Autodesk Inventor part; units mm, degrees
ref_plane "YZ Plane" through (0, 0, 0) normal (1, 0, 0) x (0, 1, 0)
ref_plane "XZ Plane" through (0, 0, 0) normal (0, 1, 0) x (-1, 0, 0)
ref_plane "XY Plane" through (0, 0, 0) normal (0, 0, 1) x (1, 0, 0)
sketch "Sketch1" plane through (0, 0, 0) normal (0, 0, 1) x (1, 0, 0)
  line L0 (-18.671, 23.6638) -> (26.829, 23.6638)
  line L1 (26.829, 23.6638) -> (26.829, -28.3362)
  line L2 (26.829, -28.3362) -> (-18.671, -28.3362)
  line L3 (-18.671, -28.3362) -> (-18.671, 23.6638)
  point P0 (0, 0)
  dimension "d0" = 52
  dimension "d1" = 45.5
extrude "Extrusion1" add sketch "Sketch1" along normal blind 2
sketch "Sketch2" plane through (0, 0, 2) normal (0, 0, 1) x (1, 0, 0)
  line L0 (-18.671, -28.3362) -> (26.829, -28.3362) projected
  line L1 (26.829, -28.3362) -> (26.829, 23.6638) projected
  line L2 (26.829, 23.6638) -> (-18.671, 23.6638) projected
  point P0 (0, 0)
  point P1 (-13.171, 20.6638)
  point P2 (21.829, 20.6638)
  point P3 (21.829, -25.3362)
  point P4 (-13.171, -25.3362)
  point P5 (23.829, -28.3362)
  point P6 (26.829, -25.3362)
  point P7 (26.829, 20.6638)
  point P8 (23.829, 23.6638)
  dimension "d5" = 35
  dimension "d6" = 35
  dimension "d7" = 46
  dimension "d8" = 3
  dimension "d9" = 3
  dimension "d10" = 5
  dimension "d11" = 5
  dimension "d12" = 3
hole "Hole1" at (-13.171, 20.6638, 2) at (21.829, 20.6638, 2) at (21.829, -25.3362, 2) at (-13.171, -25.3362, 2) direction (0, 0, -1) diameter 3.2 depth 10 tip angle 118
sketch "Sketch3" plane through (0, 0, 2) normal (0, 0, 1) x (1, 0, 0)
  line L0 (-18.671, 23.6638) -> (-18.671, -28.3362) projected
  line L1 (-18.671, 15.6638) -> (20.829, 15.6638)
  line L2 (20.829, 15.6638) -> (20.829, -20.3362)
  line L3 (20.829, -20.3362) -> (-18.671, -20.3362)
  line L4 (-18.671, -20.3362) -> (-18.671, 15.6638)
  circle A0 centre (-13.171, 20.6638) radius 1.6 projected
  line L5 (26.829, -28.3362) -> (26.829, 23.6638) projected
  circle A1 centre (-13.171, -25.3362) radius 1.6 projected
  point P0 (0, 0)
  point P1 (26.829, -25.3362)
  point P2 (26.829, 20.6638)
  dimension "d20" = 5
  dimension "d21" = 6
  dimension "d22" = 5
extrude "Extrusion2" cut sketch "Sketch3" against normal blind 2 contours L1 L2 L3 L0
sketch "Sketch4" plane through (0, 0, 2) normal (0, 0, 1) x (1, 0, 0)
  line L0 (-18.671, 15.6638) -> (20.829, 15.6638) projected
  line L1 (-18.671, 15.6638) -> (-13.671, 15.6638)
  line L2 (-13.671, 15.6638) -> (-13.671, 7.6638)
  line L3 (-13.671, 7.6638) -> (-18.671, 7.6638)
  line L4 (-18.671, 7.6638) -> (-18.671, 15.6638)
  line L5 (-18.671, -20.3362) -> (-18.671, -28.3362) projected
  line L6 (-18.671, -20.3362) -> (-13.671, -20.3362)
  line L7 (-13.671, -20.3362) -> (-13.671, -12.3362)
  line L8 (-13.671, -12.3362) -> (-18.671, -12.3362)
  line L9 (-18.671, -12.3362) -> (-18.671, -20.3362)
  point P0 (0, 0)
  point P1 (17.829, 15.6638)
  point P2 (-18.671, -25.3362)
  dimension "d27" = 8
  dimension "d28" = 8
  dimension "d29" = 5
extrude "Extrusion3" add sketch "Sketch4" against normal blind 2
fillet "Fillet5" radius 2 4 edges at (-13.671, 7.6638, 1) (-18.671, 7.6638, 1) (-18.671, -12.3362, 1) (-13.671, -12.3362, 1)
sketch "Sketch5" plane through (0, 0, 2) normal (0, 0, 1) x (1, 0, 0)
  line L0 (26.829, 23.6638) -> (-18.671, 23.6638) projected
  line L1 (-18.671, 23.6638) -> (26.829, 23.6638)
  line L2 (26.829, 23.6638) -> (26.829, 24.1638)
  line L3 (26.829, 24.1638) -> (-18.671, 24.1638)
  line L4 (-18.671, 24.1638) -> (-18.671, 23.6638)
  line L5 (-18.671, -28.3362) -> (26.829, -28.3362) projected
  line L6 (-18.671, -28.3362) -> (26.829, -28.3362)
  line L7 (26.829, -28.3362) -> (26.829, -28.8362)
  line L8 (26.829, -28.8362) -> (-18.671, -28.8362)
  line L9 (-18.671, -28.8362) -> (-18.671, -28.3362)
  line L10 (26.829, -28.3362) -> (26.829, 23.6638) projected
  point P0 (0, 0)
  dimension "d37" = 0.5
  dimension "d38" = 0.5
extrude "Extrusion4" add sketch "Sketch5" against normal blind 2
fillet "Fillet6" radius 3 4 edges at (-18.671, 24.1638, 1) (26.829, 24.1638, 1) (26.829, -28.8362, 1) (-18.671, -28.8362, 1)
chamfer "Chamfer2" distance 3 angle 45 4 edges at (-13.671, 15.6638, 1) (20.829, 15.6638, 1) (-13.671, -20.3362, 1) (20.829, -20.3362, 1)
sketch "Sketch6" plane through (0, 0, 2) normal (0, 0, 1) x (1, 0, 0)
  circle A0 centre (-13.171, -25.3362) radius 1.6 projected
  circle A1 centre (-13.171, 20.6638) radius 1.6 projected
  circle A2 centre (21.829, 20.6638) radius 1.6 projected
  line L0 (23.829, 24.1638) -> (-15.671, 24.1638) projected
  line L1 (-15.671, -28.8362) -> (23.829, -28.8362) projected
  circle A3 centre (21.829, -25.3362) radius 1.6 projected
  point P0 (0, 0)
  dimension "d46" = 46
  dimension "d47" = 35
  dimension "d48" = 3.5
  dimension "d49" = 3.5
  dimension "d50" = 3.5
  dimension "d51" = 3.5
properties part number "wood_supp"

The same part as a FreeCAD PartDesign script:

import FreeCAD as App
import Part
import Sketcher

V = App.Vector


def edges_at(feature, points):
    """Names of the edges that pass closest to the given points."""
    edges = feature.Shape.Edges
    near = lambda p: min(range(len(edges)), key=lambda i: edges[i].distToShape(Part.Vertex(*p))[0])
    return sorted({f"Edge{near(p) + 1}" for p in points})

doc = App.newDocument("Part")
body = doc.addObject("PartDesign::Body", "Body")

sketch1 = body.newObject("Sketcher::SketchObject", "Sketch")
sketch1.AttachmentSupport = (doc.getObject("XY_Plane"), [""])
sketch1.MapMode = "FlatFace"
sketch1.addGeometry(Part.LineSegment(V(27, 24, 0), V(-19, 24, 0)), False)
sketch1.addGeometry(Part.LineSegment(V(-19, 24, 0), V(-19, -28, 0)), False)
sketch1.addGeometry(Part.LineSegment(V(-19, -28, 0), V(27, -28, 0)), False)
sketch1.addGeometry(Part.LineSegment(V(27, -28, 0), V(27, 24, 0)), False)
sketch1.addConstraint(Sketcher.Constraint("Coincident", 0, 2, 1, 1))
sketch1.addConstraint(Sketcher.Constraint("Coincident", 1, 2, 2, 1))
sketch1.addConstraint(Sketcher.Constraint("Coincident", 2, 2, 3, 1))
sketch1.addConstraint(Sketcher.Constraint("Coincident", 3, 2, 0, 1))
sketch1.addConstraint(Sketcher.Constraint("Horizontal", 0))
sketch1.addConstraint(Sketcher.Constraint("Vertical", 1))
sketch1.addConstraint(Sketcher.Constraint("Horizontal", 2))
sketch1.addConstraint(Sketcher.Constraint("Vertical", 3))
sketch1.addConstraint(Sketcher.Constraint("DistanceY", 1, 2, 1, 1, 52.0))
sketch1.addConstraint(Sketcher.Constraint("DistanceX", 0, 2, 0, 1, 45.5))
sketch1.addConstraint(Sketcher.Constraint("DistanceX", 0, 2, -1, 1, 18.671))
sketch1.addConstraint(Sketcher.Constraint("DistanceY", -1, 1, 0, 2, 23.6638))
pad1 = body.newObject("PartDesign::Pad", "Pad")
pad1.Profile = sketch1
pad1.Length = 2

sketch2 = body.newObject("Sketcher::SketchObject", "Sketch001")
sketch2.AttachmentSupport = (doc.getObject("XY_Plane"), [""])
sketch2.MapMode = "FlatFace"
sketch2.AttachmentOffset = App.Placement(V(0, 0, 2), App.Rotation())
sketch2.addGeometry(Part.Circle(V(-13.2, 20.7, 0), V(0, 0, 1), 1.6), False)
sketch2.addGeometry(Part.Circle(V(21.8, 20.7, 0), V(0, 0, 1), 1.6), False)
sketch2.addGeometry(Part.Circle(V(21.8, -25.3, 0), V(0, 0, 1), 1.6), False)
sketch2.addGeometry(Part.Circle(V(-13.2, -25.3, 0), V(0, 0, 1), 1.6), False)
sketch2.addConstraint(Sketcher.Constraint("Equal", 0, 1))
sketch2.addConstraint(Sketcher.Constraint("Equal", 1, 2))
sketch2.addConstraint(Sketcher.Constraint("Equal", 2, 3))
sketch2.addConstraint(Sketcher.Constraint("Horizontal", 0, 3, 1, 3))
sketch2.addConstraint(Sketcher.Constraint("Horizontal", 2, 3, 3, 3))
sketch2.addConstraint(Sketcher.Constraint("Vertical", 1, 3, 2, 3))
sketch2.addConstraint(Sketcher.Constraint("Vertical", 0, 3, 3, 3))
sketch2.addConstraint(Sketcher.Constraint("Diameter", 0, 3.2))
sketch2.addConstraint(Sketcher.Constraint("DistanceX", 0, 3, 1, 3, 35.0))
sketch2.addConstraint(Sketcher.Constraint("DistanceY", 2, 3, 1, 3, 46.0))
sketch2.addConstraint(Sketcher.Constraint("DistanceX", 0, 3, -1, 1, 13.171))
sketch2.addConstraint(Sketcher.Constraint("DistanceY", -1, 1, 0, 3, 20.6638))
doc.recompute()
hole = body.newObject("PartDesign::Hole", "Hole")
hole.Profile = sketch2
hole.ThreadType = "None"
hole.Diameter = 3.2
hole.DepthType = "Dimension"
hole.Depth = 10
hole.DrillPoint = "Angled"
hole.DrillPointAngle = 118

sketch3 = body.newObject("Sketcher::SketchObject", "Sketch002")
sketch3.AttachmentSupport = (doc.getObject("XY_Plane"), [""])
sketch3.MapMode = "FlatFace"
sketch3.AttachmentOffset = App.Placement(V(0, 0, 2), App.Rotation())
sketch3.addGeometry(Part.LineSegment(V(21, 16, 0), V(-19, 16, 0)), False)
sketch3.addGeometry(Part.LineSegment(V(-19, 16, 0), V(-19, -20, 0)), False)
sketch3.addGeometry(Part.LineSegment(V(-19, -20, 0), V(21, -20, 0)), False)
sketch3.addGeometry(Part.LineSegment(V(21, -20, 0), V(21, 16, 0)), False)
sketch3.addConstraint(Sketcher.Constraint("Coincident", 0, 2, 1, 1))
sketch3.addConstraint(Sketcher.Constraint("Coincident", 1, 2, 2, 1))
sketch3.addConstraint(Sketcher.Constraint("Coincident", 2, 2, 3, 1))
sketch3.addConstraint(Sketcher.Constraint("Coincident", 3, 2, 0, 1))
sketch3.addConstraint(Sketcher.Constraint("Horizontal", 0))
sketch3.addConstraint(Sketcher.Constraint("Vertical", 1))
sketch3.addConstraint(Sketcher.Constraint("Horizontal", 2))
sketch3.addConstraint(Sketcher.Constraint("Vertical", 3))
sketch3.addConstraint(Sketcher.Constraint("DistanceY", 1, 2, 1, 1, 36.0))
sketch3.addConstraint(Sketcher.Constraint("DistanceX", 0, 2, 0, 1, 39.5))
sketch3.addConstraint(Sketcher.Constraint("DistanceX", 0, 2, -1, 1, 18.671))
sketch3.addConstraint(Sketcher.Constraint("DistanceY", -1, 1, 0, 2, 15.6638))
pocket1 = body.newObject("PartDesign::Pocket", "Pocket")
pocket1.Profile = sketch3
pocket1.Length = 2

sketch4 = body.newObject("Sketcher::SketchObject", "Sketch003")
sketch4.AttachmentSupport = (doc.getObject("XY_Plane"), [""])
sketch4.MapMode = "FlatFace"
sketch4.AttachmentOffset = App.Placement(V(0, 0, 2), App.Rotation())
sketch4.addGeometry(Part.LineSegment(V(-14, 16, 0), V(-19, 16, 0)), False)
sketch4.addGeometry(Part.LineSegment(V(-19, 16, 0), V(-19, 8, 0)), False)
sketch4.addGeometry(Part.LineSegment(V(-19, 8, 0), V(-14, 8, 0)), False)
sketch4.addGeometry(Part.LineSegment(V(-14, 8, 0), V(-14, 16, 0)), False)
sketch4.addGeometry(Part.LineSegment(V(-19, -12, 0), V(-19, -20, 0)), False)
sketch4.addGeometry(Part.LineSegment(V(-19, -20, 0), V(-14, -20, 0)), False)
sketch4.addGeometry(Part.LineSegment(V(-14, -20, 0), V(-14, -12, 0)), False)
sketch4.addGeometry(Part.LineSegment(V(-14, -12, 0), V(-19, -12, 0)), False)
sketch4.addConstraint(Sketcher.Constraint("Coincident", 0, 2, 1, 1))
sketch4.addConstraint(Sketcher.Constraint("Coincident", 1, 2, 2, 1))
sketch4.addConstraint(Sketcher.Constraint("Coincident", 2, 2, 3, 1))
sketch4.addConstraint(Sketcher.Constraint("Coincident", 3, 2, 0, 1))
sketch4.addConstraint(Sketcher.Constraint("Coincident", 4, 2, 5, 1))
sketch4.addConstraint(Sketcher.Constraint("Coincident", 5, 2, 6, 1))
sketch4.addConstraint(Sketcher.Constraint("Coincident", 6, 2, 7, 1))
sketch4.addConstraint(Sketcher.Constraint("Coincident", 7, 2, 4, 1))
sketch4.addConstraint(Sketcher.Constraint("Horizontal", 0))
sketch4.addConstraint(Sketcher.Constraint("Vertical", 1))
sketch4.addConstraint(Sketcher.Constraint("Horizontal", 2))
sketch4.addConstraint(Sketcher.Constraint("Vertical", 3))
sketch4.addConstraint(Sketcher.Constraint("Vertical", 4))
sketch4.addConstraint(Sketcher.Constraint("Horizontal", 5))
sketch4.addConstraint(Sketcher.Constraint("Vertical", 6))
sketch4.addConstraint(Sketcher.Constraint("Horizontal", 7))
sketch4.addConstraint(Sketcher.Constraint("Vertical", 1, 2, 4, 2))
sketch4.addConstraint(Sketcher.Constraint("Vertical", 3, 2, 5, 2))
sketch4.addConstraint(Sketcher.Constraint("Equal", 3, 4))
sketch4.addConstraint(Sketcher.Constraint("DistanceX", 0, 2, 0, 1, 5.0))
sketch4.addConstraint(Sketcher.Constraint("DistanceY", 1, 2, 1, 1, 8.0))
sketch4.addConstraint(Sketcher.Constraint("DistanceY", 4, 2, 1, 2, 28.0))
sketch4.addConstraint(Sketcher.Constraint("DistanceX", 0, 2, -1, 1, 18.671))
sketch4.addConstraint(Sketcher.Constraint("DistanceY", -1, 1, 0, 2, 15.6638))
pad2 = body.newObject("PartDesign::Pad", "Pad001")
pad2.Profile = sketch4
pad2.Length = 2
pad2.Reversed = True
doc.recompute()

fillet = body.newObject("PartDesign::Fillet", "Fillet")
fillet.Base = (pad2, edges_at(pad2, [
    (-13.671, 7.664, 1),
    (-18.671, 7.664, 1),
    (-18.671, -12.336, 1),
    (-13.671, -12.336, 1),
]))
fillet.Radius = 2

sketch5 = body.newObject("Sketcher::SketchObject", "Sketch004")
sketch5.AttachmentSupport = (doc.getObject("XY_Plane"), [""])
sketch5.MapMode = "FlatFace"
sketch5.AttachmentOffset = App.Placement(V(0, 0, 2), App.Rotation())
sketch5.addGeometry(Part.LineSegment(V(-18.7, 23.7, 0), V(26.8, 23.7, 0)), False)
sketch5.addGeometry(Part.LineSegment(V(26.8, 23.7, 0), V(26.8, 24.2, 0)), False)
sketch5.addGeometry(Part.LineSegment(V(26.8, 24.2, 0), V(-18.7, 24.2, 0)), False)
sketch5.addGeometry(Part.LineSegment(V(-18.7, 24.2, 0), V(-18.7, 23.7, 0)), False)
sketch5.addGeometry(Part.LineSegment(V(26.8, -28.8, 0), V(26.8, -28.3, 0)), False)
sketch5.addGeometry(Part.LineSegment(V(26.8, -28.3, 0), V(-18.7, -28.3, 0)), False)
sketch5.addGeometry(Part.LineSegment(V(-18.7, -28.3, 0), V(-18.7, -28.8, 0)), False)
sketch5.addGeometry(Part.LineSegment(V(-18.7, -28.8, 0), V(26.8, -28.8, 0)), False)
sketch5.addConstraint(Sketcher.Constraint("Coincident", 0, 2, 1, 1))
sketch5.addConstraint(Sketcher.Constraint("Coincident", 1, 2, 2, 1))
sketch5.addConstraint(Sketcher.Constraint("Coincident", 2, 2, 3, 1))
sketch5.addConstraint(Sketcher.Constraint("Coincident", 3, 2, 0, 1))
sketch5.addConstraint(Sketcher.Constraint("Coincident", 4, 2, 5, 1))
sketch5.addConstraint(Sketcher.Constraint("Coincident", 5, 2, 6, 1))
sketch5.addConstraint(Sketcher.Constraint("Coincident", 6, 2, 7, 1))
sketch5.addConstraint(Sketcher.Constraint("Coincident", 7, 2, 4, 1))
sketch5.addConstraint(Sketcher.Constraint("Horizontal", 0))
sketch5.addConstraint(Sketcher.Constraint("Vertical", 1))
sketch5.addConstraint(Sketcher.Constraint("Horizontal", 2))
sketch5.addConstraint(Sketcher.Constraint("Vertical", 3))
sketch5.addConstraint(Sketcher.Constraint("Vertical", 4))
sketch5.addConstraint(Sketcher.Constraint("Horizontal", 5))
sketch5.addConstraint(Sketcher.Constraint("Vertical", 6))
sketch5.addConstraint(Sketcher.Constraint("Horizontal", 7))
sketch5.addConstraint(Sketcher.Constraint("Vertical", 1, 2, 4, 2))
sketch5.addConstraint(Sketcher.Constraint("Vertical", 3, 2, 5, 2))
sketch5.addConstraint(Sketcher.Constraint("Equal", 3, 4))
sketch5.addConstraint(Sketcher.Constraint("DistanceY", 1, 1, 1, 2, 0.5))
sketch5.addConstraint(Sketcher.Constraint("DistanceX", 0, 1, 0, 2, 45.5))
sketch5.addConstraint(Sketcher.Constraint("DistanceY", 4, 2, 0, 2, 52.0))
sketch5.addConstraint(Sketcher.Constraint("DistanceX", -1, 1, 0, 2, 26.829))
sketch5.addConstraint(Sketcher.Constraint("DistanceY", -1, 1, 0, 2, 23.6638))
pad3 = body.newObject("PartDesign::Pad", "Pad002")
pad3.Profile = sketch5
pad3.Length = 2
pad3.Reversed = True
doc.recompute()

fillet2 = body.newObject("PartDesign::Fillet", "Fillet001")
fillet2.Base = (pad3, edges_at(pad3, [
    (-18.671, 24.164, 1),
    (26.829, 24.164, 1),
    (26.829, -28.836, 1),
    (-18.671, -28.836, 1),
]))
fillet2.Radius = 3
doc.recompute()

chamfer = body.newObject("PartDesign::Chamfer", "Chamfer")
chamfer.Base = (fillet2, edges_at(fillet2, [
    (-13.671, 15.664, 1),
    (20.829, 15.664, 1),
    (-13.671, -20.336, 1),
    (20.829, -20.336, 1),
]))
chamfer.Size = 3

doc.recompute()
